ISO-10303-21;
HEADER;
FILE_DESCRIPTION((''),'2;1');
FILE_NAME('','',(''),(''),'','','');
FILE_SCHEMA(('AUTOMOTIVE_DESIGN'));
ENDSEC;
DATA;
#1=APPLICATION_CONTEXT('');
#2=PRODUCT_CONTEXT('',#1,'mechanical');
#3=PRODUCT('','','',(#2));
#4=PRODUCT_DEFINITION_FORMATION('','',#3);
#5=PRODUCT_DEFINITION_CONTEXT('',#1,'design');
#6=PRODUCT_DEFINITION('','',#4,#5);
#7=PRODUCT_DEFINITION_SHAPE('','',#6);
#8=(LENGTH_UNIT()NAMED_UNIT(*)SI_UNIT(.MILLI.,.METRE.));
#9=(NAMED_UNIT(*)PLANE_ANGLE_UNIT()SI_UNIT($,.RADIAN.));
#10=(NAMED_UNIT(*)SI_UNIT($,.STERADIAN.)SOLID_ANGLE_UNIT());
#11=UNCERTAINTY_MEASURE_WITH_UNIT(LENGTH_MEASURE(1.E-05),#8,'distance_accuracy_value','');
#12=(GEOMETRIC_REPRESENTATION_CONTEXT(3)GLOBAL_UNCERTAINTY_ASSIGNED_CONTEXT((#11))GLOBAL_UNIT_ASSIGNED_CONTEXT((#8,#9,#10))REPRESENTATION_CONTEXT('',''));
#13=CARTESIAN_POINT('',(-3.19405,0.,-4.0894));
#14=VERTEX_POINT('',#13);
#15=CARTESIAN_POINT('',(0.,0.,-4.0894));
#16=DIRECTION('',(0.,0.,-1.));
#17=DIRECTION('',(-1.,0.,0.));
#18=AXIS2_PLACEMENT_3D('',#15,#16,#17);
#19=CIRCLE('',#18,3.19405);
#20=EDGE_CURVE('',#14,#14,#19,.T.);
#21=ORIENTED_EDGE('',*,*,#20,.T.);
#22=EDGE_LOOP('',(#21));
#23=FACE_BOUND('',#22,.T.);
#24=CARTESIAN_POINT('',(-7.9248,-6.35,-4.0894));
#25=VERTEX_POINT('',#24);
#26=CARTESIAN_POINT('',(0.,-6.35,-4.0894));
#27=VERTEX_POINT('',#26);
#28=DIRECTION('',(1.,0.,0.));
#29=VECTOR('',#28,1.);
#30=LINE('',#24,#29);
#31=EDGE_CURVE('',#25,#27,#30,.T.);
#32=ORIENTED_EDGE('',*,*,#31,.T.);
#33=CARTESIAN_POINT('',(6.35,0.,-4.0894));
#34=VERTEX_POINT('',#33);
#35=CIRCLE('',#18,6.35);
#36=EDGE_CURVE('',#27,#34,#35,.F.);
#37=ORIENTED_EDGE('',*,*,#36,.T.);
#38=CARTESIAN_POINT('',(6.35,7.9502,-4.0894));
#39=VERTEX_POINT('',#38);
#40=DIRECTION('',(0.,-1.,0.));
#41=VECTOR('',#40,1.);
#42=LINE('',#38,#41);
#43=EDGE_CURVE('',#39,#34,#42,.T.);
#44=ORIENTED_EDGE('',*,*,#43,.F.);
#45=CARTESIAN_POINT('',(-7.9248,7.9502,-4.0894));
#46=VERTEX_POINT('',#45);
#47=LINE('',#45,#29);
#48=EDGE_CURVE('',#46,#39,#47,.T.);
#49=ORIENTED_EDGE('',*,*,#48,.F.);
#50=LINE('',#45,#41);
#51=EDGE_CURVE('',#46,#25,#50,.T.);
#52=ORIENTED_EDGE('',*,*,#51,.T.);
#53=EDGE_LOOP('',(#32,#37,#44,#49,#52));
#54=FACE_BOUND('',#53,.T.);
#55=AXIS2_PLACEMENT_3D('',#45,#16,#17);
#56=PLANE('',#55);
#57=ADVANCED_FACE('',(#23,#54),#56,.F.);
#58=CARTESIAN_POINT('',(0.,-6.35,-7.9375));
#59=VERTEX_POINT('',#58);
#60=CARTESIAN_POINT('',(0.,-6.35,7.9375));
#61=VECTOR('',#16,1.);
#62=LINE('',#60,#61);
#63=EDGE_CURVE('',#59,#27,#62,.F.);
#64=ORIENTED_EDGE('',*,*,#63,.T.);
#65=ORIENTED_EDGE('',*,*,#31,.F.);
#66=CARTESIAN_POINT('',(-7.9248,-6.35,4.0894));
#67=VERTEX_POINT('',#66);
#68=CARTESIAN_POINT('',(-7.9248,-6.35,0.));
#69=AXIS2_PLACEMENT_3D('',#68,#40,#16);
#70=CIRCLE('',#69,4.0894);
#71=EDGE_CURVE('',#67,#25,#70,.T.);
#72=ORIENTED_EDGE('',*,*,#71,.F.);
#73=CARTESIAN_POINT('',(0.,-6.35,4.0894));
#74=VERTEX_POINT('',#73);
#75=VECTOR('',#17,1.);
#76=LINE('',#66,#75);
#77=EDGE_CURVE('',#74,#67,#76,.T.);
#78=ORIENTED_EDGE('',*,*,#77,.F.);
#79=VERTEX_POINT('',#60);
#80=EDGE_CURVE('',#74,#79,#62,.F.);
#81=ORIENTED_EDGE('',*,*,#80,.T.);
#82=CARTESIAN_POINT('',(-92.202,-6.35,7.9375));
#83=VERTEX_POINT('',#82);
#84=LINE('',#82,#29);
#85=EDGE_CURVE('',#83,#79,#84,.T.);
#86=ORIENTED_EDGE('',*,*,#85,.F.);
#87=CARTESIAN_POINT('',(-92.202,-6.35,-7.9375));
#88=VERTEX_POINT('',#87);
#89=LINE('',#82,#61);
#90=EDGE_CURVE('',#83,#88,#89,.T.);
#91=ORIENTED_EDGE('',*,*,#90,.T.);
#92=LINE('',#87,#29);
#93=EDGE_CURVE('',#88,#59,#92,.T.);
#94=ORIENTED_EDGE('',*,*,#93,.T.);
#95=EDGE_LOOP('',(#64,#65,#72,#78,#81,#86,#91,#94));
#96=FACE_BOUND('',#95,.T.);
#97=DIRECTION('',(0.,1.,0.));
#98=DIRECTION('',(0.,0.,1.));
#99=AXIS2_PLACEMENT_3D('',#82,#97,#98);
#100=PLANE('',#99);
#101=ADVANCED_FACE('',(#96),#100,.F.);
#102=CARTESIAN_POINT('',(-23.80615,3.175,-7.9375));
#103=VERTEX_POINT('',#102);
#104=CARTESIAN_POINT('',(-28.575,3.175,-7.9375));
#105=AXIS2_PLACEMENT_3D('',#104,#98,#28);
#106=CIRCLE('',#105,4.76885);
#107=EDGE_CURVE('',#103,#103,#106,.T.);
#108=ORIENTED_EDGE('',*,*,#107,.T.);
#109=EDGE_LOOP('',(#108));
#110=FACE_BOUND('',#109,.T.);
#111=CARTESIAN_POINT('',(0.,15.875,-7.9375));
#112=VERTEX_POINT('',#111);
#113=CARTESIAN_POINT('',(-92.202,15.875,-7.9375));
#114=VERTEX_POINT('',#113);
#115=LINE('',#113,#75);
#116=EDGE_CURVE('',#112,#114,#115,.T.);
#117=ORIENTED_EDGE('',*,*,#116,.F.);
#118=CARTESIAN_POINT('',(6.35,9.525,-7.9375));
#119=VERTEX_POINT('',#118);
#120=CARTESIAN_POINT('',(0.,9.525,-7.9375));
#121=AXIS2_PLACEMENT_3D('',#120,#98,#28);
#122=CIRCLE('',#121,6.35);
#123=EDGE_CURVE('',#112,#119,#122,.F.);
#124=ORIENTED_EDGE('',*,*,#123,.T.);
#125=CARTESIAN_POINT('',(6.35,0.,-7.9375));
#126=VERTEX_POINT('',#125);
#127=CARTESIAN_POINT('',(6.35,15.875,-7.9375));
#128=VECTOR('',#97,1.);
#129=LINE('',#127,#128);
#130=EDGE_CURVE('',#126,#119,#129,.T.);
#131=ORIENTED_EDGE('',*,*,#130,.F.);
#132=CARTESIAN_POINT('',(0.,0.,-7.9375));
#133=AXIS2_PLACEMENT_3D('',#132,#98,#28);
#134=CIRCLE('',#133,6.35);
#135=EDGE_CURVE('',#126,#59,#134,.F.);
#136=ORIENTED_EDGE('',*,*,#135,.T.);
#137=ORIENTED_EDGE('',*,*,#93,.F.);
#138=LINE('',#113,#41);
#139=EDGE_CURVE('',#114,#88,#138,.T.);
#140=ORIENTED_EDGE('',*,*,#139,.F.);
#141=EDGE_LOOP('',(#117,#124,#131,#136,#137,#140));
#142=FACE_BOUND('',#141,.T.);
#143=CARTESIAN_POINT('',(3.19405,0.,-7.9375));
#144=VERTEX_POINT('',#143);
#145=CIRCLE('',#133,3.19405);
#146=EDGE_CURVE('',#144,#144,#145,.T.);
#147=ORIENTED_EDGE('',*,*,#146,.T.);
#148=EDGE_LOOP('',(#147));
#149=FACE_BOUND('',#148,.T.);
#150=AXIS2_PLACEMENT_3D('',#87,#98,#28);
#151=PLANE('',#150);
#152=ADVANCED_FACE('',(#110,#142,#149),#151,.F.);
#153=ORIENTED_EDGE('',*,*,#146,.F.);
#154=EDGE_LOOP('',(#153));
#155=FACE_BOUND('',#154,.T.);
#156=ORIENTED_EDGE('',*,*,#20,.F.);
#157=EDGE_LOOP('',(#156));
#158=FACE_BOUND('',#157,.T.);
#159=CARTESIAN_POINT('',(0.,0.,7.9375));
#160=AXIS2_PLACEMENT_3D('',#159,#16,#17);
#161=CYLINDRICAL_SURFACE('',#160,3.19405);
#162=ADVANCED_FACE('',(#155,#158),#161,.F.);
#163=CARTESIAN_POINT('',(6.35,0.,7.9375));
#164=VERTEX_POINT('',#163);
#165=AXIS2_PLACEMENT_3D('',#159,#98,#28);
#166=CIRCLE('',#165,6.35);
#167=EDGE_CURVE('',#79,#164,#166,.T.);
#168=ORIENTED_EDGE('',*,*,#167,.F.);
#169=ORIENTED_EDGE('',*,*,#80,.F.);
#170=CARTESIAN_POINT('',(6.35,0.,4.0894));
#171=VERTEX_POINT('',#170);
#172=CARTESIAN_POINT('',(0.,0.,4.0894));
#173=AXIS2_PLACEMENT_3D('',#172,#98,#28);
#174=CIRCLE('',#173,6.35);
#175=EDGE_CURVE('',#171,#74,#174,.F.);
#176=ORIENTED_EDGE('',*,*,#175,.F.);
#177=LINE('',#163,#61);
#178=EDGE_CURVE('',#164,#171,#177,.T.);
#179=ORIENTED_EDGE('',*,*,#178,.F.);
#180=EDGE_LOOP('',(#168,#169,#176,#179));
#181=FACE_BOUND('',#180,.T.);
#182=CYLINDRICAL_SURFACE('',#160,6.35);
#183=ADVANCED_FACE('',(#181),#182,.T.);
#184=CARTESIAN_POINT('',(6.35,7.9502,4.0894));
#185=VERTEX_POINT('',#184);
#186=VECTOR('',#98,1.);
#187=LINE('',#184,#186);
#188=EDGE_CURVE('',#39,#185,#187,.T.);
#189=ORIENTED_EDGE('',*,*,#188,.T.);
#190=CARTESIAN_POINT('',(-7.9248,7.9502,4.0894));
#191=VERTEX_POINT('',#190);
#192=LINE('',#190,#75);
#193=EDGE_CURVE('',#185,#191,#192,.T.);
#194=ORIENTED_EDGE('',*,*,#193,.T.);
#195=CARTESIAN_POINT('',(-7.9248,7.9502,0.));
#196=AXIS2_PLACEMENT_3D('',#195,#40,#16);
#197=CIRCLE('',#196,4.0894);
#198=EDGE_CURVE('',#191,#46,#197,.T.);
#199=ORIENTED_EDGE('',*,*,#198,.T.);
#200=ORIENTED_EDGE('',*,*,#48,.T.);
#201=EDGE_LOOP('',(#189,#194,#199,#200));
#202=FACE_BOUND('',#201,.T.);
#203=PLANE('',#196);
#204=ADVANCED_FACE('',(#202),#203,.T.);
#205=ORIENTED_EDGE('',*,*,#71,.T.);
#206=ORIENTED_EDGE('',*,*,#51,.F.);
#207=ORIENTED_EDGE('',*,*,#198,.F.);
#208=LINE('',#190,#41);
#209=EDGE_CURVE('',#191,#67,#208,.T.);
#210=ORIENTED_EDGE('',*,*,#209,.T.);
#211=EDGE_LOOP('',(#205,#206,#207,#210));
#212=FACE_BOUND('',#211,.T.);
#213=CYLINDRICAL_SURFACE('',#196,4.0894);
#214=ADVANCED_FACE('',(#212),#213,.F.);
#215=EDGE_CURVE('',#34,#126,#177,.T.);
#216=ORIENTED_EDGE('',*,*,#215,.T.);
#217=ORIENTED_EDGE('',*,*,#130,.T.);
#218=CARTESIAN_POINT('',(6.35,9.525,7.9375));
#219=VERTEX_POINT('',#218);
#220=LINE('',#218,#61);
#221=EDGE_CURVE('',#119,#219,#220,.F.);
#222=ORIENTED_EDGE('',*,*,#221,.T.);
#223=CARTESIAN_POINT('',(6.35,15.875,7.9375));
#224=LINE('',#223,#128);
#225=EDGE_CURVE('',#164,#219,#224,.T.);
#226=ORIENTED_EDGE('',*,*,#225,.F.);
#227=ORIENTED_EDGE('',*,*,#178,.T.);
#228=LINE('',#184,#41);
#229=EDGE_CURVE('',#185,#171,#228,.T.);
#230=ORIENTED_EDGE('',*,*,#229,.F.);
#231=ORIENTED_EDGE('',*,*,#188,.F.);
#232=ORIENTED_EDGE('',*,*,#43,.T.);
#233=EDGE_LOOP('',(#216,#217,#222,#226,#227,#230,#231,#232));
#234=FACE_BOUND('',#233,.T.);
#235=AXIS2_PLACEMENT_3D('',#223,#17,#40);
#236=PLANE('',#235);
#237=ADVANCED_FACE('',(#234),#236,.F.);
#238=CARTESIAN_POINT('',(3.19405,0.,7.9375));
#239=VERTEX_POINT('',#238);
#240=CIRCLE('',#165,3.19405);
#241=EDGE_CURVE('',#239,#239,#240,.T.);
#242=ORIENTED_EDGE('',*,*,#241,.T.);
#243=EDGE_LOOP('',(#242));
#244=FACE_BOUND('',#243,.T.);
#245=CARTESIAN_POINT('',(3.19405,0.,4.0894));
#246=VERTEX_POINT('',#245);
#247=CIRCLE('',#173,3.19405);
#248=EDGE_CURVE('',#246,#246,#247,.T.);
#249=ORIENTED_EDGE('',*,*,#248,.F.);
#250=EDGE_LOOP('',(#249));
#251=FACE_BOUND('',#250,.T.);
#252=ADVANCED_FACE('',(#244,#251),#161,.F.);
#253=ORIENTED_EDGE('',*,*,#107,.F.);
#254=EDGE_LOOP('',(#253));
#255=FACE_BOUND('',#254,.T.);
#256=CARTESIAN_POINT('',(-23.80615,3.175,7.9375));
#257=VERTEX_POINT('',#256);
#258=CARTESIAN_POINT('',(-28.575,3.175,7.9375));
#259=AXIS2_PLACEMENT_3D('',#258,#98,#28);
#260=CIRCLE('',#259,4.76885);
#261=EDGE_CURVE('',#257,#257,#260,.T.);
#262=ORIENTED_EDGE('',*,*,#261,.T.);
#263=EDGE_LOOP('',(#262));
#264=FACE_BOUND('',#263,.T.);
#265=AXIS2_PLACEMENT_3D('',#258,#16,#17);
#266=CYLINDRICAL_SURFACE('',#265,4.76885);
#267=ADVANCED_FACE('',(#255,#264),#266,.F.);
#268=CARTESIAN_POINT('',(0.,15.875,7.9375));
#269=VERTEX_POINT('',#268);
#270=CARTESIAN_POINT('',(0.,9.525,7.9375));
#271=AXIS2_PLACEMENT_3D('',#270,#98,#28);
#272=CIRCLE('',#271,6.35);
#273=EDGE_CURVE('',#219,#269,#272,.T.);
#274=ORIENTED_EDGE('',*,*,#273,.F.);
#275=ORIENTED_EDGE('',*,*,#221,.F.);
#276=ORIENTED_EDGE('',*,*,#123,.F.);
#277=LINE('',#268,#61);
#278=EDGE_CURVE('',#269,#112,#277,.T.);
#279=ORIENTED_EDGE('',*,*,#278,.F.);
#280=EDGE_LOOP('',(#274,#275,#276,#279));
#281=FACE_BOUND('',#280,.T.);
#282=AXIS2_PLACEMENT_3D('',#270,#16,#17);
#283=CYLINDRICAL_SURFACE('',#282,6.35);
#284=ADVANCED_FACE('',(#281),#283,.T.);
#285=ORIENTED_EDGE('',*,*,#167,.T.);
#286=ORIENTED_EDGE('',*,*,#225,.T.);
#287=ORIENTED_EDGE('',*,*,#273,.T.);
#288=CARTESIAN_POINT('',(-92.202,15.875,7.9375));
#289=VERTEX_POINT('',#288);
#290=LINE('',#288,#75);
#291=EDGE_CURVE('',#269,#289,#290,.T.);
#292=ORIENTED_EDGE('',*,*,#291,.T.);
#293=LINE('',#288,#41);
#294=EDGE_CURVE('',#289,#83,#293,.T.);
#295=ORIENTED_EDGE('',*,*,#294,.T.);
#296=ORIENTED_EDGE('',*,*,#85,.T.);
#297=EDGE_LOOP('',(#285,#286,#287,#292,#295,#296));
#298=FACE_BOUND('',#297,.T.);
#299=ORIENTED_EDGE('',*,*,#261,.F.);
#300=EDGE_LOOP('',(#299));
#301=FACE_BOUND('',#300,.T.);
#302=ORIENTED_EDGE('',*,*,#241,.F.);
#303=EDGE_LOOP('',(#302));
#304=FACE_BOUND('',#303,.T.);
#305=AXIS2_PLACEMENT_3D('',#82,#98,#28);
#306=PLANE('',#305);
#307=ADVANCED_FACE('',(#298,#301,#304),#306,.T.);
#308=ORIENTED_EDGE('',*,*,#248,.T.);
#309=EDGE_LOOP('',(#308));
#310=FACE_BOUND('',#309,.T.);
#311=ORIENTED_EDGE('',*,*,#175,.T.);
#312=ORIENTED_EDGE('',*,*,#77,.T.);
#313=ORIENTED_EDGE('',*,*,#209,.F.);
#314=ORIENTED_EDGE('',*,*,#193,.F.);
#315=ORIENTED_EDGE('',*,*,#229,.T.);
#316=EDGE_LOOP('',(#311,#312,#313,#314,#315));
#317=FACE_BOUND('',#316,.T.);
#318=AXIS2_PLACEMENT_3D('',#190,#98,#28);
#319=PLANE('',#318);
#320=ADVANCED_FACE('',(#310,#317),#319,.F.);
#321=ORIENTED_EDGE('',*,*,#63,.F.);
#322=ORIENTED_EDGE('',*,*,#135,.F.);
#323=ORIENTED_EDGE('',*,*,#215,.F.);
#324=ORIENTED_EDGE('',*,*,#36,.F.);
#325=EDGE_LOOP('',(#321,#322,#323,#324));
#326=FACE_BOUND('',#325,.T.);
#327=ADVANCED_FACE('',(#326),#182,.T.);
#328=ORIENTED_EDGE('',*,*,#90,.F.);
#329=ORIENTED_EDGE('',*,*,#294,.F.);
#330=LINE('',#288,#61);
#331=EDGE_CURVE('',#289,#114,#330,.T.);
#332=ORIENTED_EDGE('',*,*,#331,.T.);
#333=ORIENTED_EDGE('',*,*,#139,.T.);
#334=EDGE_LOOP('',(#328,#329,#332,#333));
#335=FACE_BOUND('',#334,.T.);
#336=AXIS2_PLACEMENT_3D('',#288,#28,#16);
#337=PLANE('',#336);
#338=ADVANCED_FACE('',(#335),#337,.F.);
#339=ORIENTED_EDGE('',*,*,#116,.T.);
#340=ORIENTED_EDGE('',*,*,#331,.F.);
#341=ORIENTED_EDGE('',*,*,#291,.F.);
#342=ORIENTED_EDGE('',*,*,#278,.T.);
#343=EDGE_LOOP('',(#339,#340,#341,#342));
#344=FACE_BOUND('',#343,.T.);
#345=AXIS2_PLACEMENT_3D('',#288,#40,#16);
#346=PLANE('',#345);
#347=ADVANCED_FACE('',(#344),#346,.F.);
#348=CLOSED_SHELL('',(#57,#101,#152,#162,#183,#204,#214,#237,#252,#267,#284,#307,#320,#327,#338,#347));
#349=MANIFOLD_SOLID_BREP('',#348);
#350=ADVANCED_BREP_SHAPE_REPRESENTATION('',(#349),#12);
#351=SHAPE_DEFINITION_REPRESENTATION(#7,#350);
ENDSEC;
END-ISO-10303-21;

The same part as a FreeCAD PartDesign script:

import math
import FreeCAD as App
import Part
import Sketcher

V = App.Vector
Q = App.Units.Quantity


def edges_at(feature, points):
    """Names of the edges that pass closest to the given points."""
    edges = feature.Shape.Edges
    near = lambda p: min(range(len(edges)), key=lambda i: edges[i].distToShape(Part.Vertex(*p))[0])
    return sorted({f"Edge{near(p) + 1}" for p in points})


def add_polygon(sketch, points):
    """Adds a closed chain of lines whose ends are joined by coincident constraints."""
    first, n = sketch.GeometryCount, len(points)
    for a, b in zip(points, points[1:] + points[:1]):
        sketch.addGeometry(Part.LineSegment(App.Vector(*a, 0), App.Vector(*b, 0)), False)
    for i in range(n):
        sketch.addConstraint(Sketcher.Constraint("Coincident", first + i, 2, first + (i + 1) % n, 1))

doc = App.newDocument("Part")
body = doc.addObject("PartDesign::Body", "Body")

# Sketch on XY plane
sketch1 = doc.addObject("Sketcher::SketchObject", "Sketch")
body.addObject(sketch1)
sketch1.AttachmentSupport = (doc.XY_Plane, [""])
sketch1.MapMode = "FlatFace"
add_polygon(sketch1, [(-92.202, 15.875), (-92.202, -6.35), (6.35, -6.35), (6.35, 15.875)])  # lines 0-3
sketch1.addGeometry(Part.Circle(V(0, 0, 0), V(0, 0, 1), 3.19405), False)  # 4
sketch1.addGeometry(Part.Circle(V(-28.575, 3.175, 0), V(0, 0, 1), 4.76885), False)  # 5
sketch1.addConstraint(Sketcher.Constraint("Vertical", 0))
sketch1.addConstraint(Sketcher.Constraint("Horizontal", 1))
sketch1.addConstraint(Sketcher.Constraint("Vertical", 2))
sketch1.addConstraint(Sketcher.Constraint("Horizontal", 3))
sketch1.addConstraint(Sketcher.Constraint("Coincident", 4, 3, -1, 1))
sketch1.addConstraint(Sketcher.Constraint("Diameter", 4, Q("0.2515 in")))
sketch1.addConstraint(Sketcher.Constraint("Diameter", 5, Q("0.3755 in")))
sketch1.addConstraint(Sketcher.Constraint("DistanceX", 1, 1, 1, 2, Q("3.88 in")))
sketch1.addConstraint(Sketcher.Constraint("DistanceY", 5, 3, 2, 2, Q("0.5 in")))
sketch1.addConstraint(Sketcher.Constraint("DistanceY", 0, 2, 0, 1, Q("0.875 in")))
sketch1.addConstraint(Sketcher.Constraint("DistanceX", 0, 2, -1, 1, Q("3.63 in")))
sketch1.addConstraint(Sketcher.Constraint("DistanceY", 0, 2, -1, 1, Q("0.25 in")))
sketch1.addConstraint(Sketcher.Constraint("DistanceX", 5, 3, -1, 1, Q("1.125 in")))
pad1 = doc.addObject("PartDesign::Pad", "Pad")
body.addObject(pad1)
pad1.Profile = sketch1
pad1.Length = Q("0.625 in")
pad1.Midplane = True

# Sketch on XZ plane
sketch2 = doc.addObject("Sketcher::SketchObject", "Sketch001")
body.addObject(sketch2)
sketch2.AttachmentSupport = (doc.XZ_Plane, [""])
sketch2.MapMode = "FlatFace"
sketch2.AttachmentOffset = App.Placement(V(0, 0, 0.25 * 25.4), App.Rotation())
sketch2.addGeometry(Part.LineSegment(V(6.35, 4.0894, 0), V(-7.9248, 4.0894, 0)), False)
sketch2.addGeometry(Part.ArcOfCircle(Part.Circle(V(-7.9248, 0, 0), V(0, 0, 1), 4.0894), math.radians(90), math.radians(270)), False)
sketch2.addGeometry(Part.LineSegment(V(-7.9248, -4.0894, 0), V(6.35, -4.0894, 0)), False)
sketch2.addGeometry(Part.LineSegment(V(6.35, -4.0894, 0), V(6.35, 4.0894, 0)), False)
sketch2.addConstraint(Sketcher.Constraint("Tangent", 0, 2, 1, 1))
sketch2.addConstraint(Sketcher.Constraint("Tangent", 1, 2, 2, 1))
sketch2.addConstraint(Sketcher.Constraint("Coincident", 2, 2, 3, 1))
sketch2.addConstraint(Sketcher.Constraint("Coincident", 3, 2, 0, 1))
sketch2.addConstraint(Sketcher.Constraint("Horizontal", 0))
sketch2.addConstraint(Sketcher.Constraint("Horizontal", 2))
sketch2.addConstraint(Sketcher.Constraint("Vertical", 3))
sketch2.addConstraint(Sketcher.Constraint("PointOnObject", 1, 3, -1))
sketch2.addConstraint(Sketcher.Constraint("Radius", 1, Q("0.161 in")))
sketch2.addConstraint(Sketcher.Constraint("DistanceX", 0, 2, 0, 1, Q("0.562 in")))
sketch2.addConstraint(Sketcher.Constraint("DistanceX", -1, 1, 2, 2, Q("0.25 in")))
pocket1 = doc.addObject("PartDesign::Pocket", "Pocket")
body.addObject(pocket1)
pocket1.Profile = sketch2
pocket1.Length = Q("0.563 in")
doc.recompute()

fillet = doc.addObject("PartDesign::Fillet", "Fillet")
body.addObject(fillet)
fillet.Base = (pocket1, edges_at(pocket1, [(6.35, -6.35, -6.013), (6.35, 15.875, 0), (6.35, -6.35, 6.013)]))
fillet.Radius = Q("0.25 in")

doc.recompute()
